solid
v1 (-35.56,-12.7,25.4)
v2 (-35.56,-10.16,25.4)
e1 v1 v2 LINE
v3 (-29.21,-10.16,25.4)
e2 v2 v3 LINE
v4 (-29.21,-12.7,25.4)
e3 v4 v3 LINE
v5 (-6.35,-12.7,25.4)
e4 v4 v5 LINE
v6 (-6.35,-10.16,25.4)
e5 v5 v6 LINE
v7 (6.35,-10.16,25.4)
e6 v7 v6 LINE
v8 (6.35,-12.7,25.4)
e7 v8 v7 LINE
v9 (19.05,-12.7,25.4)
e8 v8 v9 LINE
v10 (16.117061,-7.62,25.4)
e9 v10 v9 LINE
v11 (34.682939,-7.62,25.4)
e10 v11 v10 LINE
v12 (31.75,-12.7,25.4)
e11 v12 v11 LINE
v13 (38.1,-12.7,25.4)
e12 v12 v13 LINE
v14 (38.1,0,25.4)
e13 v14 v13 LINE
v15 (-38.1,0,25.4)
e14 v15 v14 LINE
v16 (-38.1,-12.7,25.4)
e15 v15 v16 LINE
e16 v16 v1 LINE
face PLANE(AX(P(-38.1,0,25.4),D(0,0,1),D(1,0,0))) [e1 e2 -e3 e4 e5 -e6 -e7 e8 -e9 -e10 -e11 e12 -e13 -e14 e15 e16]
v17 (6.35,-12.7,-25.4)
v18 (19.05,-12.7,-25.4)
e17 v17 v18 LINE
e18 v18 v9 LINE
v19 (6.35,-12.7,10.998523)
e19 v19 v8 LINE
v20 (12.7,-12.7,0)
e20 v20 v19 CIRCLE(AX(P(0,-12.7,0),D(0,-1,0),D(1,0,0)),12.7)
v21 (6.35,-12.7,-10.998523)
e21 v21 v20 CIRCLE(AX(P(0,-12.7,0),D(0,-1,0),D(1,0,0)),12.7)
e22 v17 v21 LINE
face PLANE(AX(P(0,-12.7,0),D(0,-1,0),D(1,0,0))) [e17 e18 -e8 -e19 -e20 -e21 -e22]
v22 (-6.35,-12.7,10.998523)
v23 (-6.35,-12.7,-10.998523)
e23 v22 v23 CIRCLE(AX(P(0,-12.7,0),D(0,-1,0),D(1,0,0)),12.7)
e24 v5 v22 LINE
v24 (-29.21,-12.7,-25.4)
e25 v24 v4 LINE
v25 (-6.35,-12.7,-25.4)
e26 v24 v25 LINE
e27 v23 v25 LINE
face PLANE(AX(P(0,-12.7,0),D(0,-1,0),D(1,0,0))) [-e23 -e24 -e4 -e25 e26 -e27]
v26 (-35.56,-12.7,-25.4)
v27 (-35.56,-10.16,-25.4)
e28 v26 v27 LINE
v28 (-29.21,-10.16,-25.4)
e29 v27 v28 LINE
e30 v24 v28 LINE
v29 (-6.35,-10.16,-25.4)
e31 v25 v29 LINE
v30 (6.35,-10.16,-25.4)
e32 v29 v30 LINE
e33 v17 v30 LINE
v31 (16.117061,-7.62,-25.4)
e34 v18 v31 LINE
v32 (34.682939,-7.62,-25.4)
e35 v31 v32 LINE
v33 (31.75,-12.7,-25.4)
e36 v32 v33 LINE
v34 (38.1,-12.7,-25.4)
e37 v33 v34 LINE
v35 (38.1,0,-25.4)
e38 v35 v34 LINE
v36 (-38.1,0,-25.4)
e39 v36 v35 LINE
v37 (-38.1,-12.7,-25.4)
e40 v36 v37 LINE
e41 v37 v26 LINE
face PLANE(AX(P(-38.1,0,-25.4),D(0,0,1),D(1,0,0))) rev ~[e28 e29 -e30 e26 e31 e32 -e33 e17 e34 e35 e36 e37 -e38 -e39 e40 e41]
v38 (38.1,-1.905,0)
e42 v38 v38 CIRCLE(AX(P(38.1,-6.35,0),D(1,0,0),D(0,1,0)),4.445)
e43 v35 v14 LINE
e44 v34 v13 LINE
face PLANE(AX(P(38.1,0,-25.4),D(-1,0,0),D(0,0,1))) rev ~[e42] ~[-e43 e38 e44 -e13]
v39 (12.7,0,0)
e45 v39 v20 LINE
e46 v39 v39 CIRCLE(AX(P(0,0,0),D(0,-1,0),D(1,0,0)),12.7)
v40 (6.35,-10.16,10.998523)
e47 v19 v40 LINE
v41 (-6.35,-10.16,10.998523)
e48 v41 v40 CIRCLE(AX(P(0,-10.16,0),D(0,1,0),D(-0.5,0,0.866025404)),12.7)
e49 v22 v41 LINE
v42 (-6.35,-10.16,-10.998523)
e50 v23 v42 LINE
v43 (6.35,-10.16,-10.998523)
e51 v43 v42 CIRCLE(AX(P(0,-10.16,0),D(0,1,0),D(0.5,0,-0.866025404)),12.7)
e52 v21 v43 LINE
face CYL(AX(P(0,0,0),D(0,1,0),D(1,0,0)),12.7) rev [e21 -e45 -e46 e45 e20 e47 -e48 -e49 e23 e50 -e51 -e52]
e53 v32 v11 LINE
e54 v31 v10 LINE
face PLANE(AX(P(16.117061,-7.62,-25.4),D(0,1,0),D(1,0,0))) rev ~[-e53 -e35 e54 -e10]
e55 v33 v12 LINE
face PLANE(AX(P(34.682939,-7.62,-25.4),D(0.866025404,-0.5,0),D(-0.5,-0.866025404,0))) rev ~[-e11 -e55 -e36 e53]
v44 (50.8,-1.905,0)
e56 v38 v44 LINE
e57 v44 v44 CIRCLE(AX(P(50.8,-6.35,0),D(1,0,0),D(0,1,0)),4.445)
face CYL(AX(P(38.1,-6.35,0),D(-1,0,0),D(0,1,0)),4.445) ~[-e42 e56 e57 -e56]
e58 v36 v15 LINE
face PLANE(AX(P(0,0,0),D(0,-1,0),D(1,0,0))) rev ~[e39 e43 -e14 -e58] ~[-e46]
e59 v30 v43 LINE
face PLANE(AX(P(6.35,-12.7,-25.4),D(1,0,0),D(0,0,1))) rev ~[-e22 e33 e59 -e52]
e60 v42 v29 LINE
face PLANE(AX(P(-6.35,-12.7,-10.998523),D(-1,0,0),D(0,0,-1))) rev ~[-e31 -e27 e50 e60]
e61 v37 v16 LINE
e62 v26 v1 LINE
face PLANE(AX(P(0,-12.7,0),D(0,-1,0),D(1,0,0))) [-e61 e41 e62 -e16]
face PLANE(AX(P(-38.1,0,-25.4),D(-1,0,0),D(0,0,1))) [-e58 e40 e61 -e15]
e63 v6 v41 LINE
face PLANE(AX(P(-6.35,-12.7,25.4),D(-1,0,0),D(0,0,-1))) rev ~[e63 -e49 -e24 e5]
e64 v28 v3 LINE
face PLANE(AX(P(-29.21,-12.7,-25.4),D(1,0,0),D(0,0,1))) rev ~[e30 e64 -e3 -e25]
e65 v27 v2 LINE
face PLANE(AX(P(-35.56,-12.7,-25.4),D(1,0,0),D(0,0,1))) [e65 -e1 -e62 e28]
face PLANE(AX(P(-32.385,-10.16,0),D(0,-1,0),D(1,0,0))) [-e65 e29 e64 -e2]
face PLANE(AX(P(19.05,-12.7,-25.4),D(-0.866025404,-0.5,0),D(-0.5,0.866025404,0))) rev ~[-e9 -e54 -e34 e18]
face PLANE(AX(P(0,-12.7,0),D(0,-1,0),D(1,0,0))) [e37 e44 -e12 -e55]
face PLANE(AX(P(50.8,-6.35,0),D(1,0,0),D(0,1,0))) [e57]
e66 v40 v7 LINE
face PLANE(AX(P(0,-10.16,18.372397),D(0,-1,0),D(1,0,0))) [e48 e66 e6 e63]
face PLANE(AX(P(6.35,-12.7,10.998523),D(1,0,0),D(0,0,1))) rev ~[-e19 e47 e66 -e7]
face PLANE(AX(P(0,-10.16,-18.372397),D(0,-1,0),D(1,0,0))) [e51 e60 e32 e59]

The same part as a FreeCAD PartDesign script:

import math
import FreeCAD as App
import Part
import Sketcher
Q = App.Units.Quantity

doc = App.newDocument("Part")
body = doc.addObject("PartDesign::Body", "Body")

# Sketch on XZ plane
sketch1 = doc.addObject("Sketcher::SketchObject", "Sketch")
body.addObject(sketch1)
sketch1.AttachmentSupport = (doc.XZ_Plane, [""])
sketch1.MapMode = "FlatFace"
sketch1.addGeometry([
    Part.LineSegment(App.Vector(-38, 25, 0), App.Vector(-38, -25, 0)),  # 0
    Part.LineSegment(App.Vector(-38, -25, 0), App.Vector(38, -25, 0)),  # 1
    Part.LineSegment(App.Vector(38, -25, 0), App.Vector(38, 25, 0)),  # 2
    Part.LineSegment(App.Vector(38, 25, 0), App.Vector(-38, 25, 0)),  # 3
    Part.Circle(App.Vector(0, 0, 0), App.Vector(0, 0, 1), 13),  # 4
], False)
sketch1.addConstraint([
    Sketcher.Constraint("Coincident", 0, 2, 1, 1),
    Sketcher.Constraint("Coincident", 1, 2, 2, 1),
    Sketcher.Constraint("Coincident", 2, 2, 3, 1),
    Sketcher.Constraint("Coincident", 3, 2, 0, 1),
    Sketcher.Constraint("Vertical", 0),
    Sketcher.Constraint("Horizontal", 1),
    Sketcher.Constraint("Vertical", 2),
    Sketcher.Constraint("Horizontal", 3),
    Sketcher.Constraint("Coincident", 4, 3, -1, 1),
    Sketcher.Constraint("Symmetric", 0, 2, 2, 2, -1, 1),
    Sketcher.Constraint("Diameter", 4, Q("1 in")),
    Sketcher.Constraint("DistanceX", 1, 1, 1, 2, Q("3 in")),
    Sketcher.Constraint("DistanceY", 0, 2, 0, 1, Q("2 in")),
])
pad1 = doc.addObject("PartDesign::Pad", "Pad")
body.addObject(pad1)
pad1.Profile = sketch1
pad1.Length = Q("0.5 in")

# Sketch on XZ plane
sketch2 = doc.addObject("Sketcher::SketchObject", "Sketch001")
body.addObject(sketch2)
sketch2.AttachmentSupport = (doc.XZ_Plane, [""])
sketch2.MapMode = "FlatFace"
sketch2.AttachmentOffset = App.Placement(App.Vector(0, 0, 0.5 * 25.4), App.Rotation())
sketch2.addGeometry([
    Part.LineSegment(App.Vector(-36, 25, 0), App.Vector(-36, -25, 0)),  # 0
    Part.LineSegment(App.Vector(-36, -25, 0), App.Vector(-29, -25, 0)),  # 1
    Part.LineSegment(App.Vector(-29, -25, 0), App.Vector(-29, 25, 0)),  # 2
    Part.LineSegment(App.Vector(-29, 25, 0), App.Vector(-36, 25, 0)),  # 3
    Part.LineSegment(App.Vector(6, 25, 0), App.Vector(-6, 25, 0)),  # 4
    Part.LineSegment(App.Vector(-6, 25, 0), App.Vector(-6, 11, 0)),  # 5
    Part.ArcOfCircle(Part.Circle(App.Vector(0, 0, 0), App.Vector(0, 0, 1), 13), math.radians(60), math.radians(120)),  # 6
    Part.LineSegment(App.Vector(6, 11, 0), App.Vector(6, 25, 0)),  # 7
    Part.LineSegment(App.Vector(-6, -11, 0), App.Vector(-6, -25, 0)),  # 8
    Part.LineSegment(App.Vector(-6, -25, 0), App.Vector(6, -25, 0)),  # 9
    Part.LineSegment(App.Vector(6, -25, 0), App.Vector(6, -11, 0)),  # 10
    Part.ArcOfCircle(Part.Circle(App.Vector(0, 0, 0), App.Vector(0, 0, 1), 13), math.radians(-120), math.radians(-60)),  # 11
], False)
sketch2.addConstraint([
    Sketcher.Constraint("Coincident", 0, 2, 1, 1),
    Sketcher.Constraint("Coincident", 1, 2, 2, 1),
    Sketcher.Constraint("Coincident", 2, 2, 3, 1),
    Sketcher.Constraint("Coincident", 3, 2, 0, 1),
    Sketcher.Constraint("Coincident", 4, 2, 5, 1),
    Sketcher.Constraint("Coincident", 5, 2, 6, 2),
    Sketcher.Constraint("Coincident", 6, 1, 7, 1),
    Sketcher.Constraint("Coincident", 7, 2, 4, 1),
    Sketcher.Constraint("Coincident", 8, 2, 9, 1),
    Sketcher.Constraint("Coincident", 9, 2, 10, 1),
    Sketcher.Constraint("Coincident", 10, 2, 11, 2),
    Sketcher.Constraint("Coincident", 11, 1, 8, 1),
    Sketcher.Constraint("Vertical", 0),
    Sketcher.Constraint("Horizontal", 1),
    Sketcher.Constraint("Vertical", 2),
    Sketcher.Constraint("Horizontal", 3),
    Sketcher.Constraint("Horizontal", 4),
    Sketcher.Constraint("Vertical", 5),
    Sketcher.Constraint("Vertical", 7),
    Sketcher.Constraint("Vertical", 8),
    Sketcher.Constraint("Horizontal", 9),
    Sketcher.Constraint("Vertical", 10),
    Sketcher.Constraint("Coincident", 6, 3, -1, 1),
    Sketcher.Constraint("Coincident", 11, 3, -1, 1),
    Sketcher.Constraint("Equal", 6, 11),
    Sketcher.Constraint("Symmetric", 7, 2, 8, 2, -1, 1),
    Sketcher.Constraint("Horizontal", 3, 2, 4, 2),
    Sketcher.Constraint("Horizontal", 5, 2, 6, 1),
    Sketcher.Constraint("Horizontal", 1, 2, 8, 2),
    Sketcher.Constraint("Horizontal", 10, 2, 11, 1),
    Sketcher.Constraint("Radius", 6, Q("0.5 in")),
    Sketcher.Constraint("DistanceY", 0, 2, 0, 1, Q("2 in")),
    Sketcher.Constraint("DistanceX", 4, 2, 4, 1, Q("0.5 in")),
    Sketcher.Constraint("DistanceX", 1, 1, 1, 2, Q("0.25 in")),
    Sketcher.Constraint("DistanceX", 0, 2, -1, 1, Q("1.4 in")),
])
pocket1 = doc.addObject("PartDesign::Pocket", "Pocket")
body.addObject(pocket1)
pocket1.Profile = sketch2
pocket1.Length = Q("0.1 in")

# Sketch on XY plane
sketch3 = doc.addObject("Sketcher::SketchObject", "Sketch002")
body.addObject(sketch3)
sketch3.AttachmentSupport = (doc.XY_Plane, [""])
sketch3.MapMode = "FlatFace"
sketch3.AttachmentOffset = App.Placement(App.Vector(0, 0, -1 * 25.4), App.Rotation())
sketch3.addGeometry([
    Part.LineSegment(App.Vector(32, -13, 0), App.Vector(19, -13, 0)),
    Part.LineSegment(App.Vector(19, -13, 0), App.Vector(16, -8, 0)),
    Part.LineSegment(App.Vector(16, -8, 0), App.Vector(35, -8, 0)),
    Part.LineSegment(App.Vector(35, -8, 0), App.Vector(32, -13, 0)),
], False)
sketch3.addConstraint([
    Sketcher.Constraint("Coincident", 0, 2, 1, 1),
    Sketcher.Constraint("Coincident", 1, 2, 2, 1),
    Sketcher.Constraint("Coincident", 2, 2, 3, 1),
    Sketcher.Constraint("Coincident", 3, 2, 0, 1),
    Sketcher.Constraint("Horizontal", 0),
    Sketcher.Constraint("Horizontal", 2),
    Sketcher.Constraint("Equal", 1, 3),
    Sketcher.Constraint("DistanceX", 0, 2, 0, 1, Q("0.5 in")),
    Sketcher.Constraint("Angle", 1, Q("120 deg")),
    Sketcher.Constraint("DistanceY", 0, 2, -1, 1, Q("0.5 in")),
    Sketcher.Constraint("DistanceY", 1, 2, -1, 1, Q("0.3 in")),
    Sketcher.Constraint("DistanceX", -1, 1, 0, 2, Q("0.75 in")),
])
pocket2 = doc.addObject("PartDesign::Pocket", "Pocket001")
body.addObject(pocket2)
pocket2.Profile = sketch3
pocket2.Type = "ThroughAll"
pocket2.Reversed = True

# Sketch on YZ plane
sketch4 = doc.addObject("Sketcher::SketchObject", "Sketch003")
body.addObject(sketch4)
sketch4.AttachmentSupport = (doc.YZ_Plane, [""])
sketch4.MapMode = "FlatFace"
sketch4.AttachmentOffset = App.Placement(App.Vector(0, 0, 1.5 * 25.4), App.Rotation())
sketch4.addGeometry(Part.Circle(App.Vector(-6.3, 0, 0), App.Vector(0, 0, 1), 4.4), False)
sketch4.addConstraint([
    Sketcher.Constraint("PointOnObject", 0, 3, -1),
    Sketcher.Constraint("Diameter", 0, Q("0.35 in")),
    Sketcher.Constraint("DistanceX", 0, 3, -1, 1, Q("0.25 in")),
])
pad2 = doc.addObject("PartDesign::Pad", "Pad001")
body.addObject(pad2)
pad2.Profile = sketch4
pad2.Length = Q("0.5 in")

doc.recompute()
